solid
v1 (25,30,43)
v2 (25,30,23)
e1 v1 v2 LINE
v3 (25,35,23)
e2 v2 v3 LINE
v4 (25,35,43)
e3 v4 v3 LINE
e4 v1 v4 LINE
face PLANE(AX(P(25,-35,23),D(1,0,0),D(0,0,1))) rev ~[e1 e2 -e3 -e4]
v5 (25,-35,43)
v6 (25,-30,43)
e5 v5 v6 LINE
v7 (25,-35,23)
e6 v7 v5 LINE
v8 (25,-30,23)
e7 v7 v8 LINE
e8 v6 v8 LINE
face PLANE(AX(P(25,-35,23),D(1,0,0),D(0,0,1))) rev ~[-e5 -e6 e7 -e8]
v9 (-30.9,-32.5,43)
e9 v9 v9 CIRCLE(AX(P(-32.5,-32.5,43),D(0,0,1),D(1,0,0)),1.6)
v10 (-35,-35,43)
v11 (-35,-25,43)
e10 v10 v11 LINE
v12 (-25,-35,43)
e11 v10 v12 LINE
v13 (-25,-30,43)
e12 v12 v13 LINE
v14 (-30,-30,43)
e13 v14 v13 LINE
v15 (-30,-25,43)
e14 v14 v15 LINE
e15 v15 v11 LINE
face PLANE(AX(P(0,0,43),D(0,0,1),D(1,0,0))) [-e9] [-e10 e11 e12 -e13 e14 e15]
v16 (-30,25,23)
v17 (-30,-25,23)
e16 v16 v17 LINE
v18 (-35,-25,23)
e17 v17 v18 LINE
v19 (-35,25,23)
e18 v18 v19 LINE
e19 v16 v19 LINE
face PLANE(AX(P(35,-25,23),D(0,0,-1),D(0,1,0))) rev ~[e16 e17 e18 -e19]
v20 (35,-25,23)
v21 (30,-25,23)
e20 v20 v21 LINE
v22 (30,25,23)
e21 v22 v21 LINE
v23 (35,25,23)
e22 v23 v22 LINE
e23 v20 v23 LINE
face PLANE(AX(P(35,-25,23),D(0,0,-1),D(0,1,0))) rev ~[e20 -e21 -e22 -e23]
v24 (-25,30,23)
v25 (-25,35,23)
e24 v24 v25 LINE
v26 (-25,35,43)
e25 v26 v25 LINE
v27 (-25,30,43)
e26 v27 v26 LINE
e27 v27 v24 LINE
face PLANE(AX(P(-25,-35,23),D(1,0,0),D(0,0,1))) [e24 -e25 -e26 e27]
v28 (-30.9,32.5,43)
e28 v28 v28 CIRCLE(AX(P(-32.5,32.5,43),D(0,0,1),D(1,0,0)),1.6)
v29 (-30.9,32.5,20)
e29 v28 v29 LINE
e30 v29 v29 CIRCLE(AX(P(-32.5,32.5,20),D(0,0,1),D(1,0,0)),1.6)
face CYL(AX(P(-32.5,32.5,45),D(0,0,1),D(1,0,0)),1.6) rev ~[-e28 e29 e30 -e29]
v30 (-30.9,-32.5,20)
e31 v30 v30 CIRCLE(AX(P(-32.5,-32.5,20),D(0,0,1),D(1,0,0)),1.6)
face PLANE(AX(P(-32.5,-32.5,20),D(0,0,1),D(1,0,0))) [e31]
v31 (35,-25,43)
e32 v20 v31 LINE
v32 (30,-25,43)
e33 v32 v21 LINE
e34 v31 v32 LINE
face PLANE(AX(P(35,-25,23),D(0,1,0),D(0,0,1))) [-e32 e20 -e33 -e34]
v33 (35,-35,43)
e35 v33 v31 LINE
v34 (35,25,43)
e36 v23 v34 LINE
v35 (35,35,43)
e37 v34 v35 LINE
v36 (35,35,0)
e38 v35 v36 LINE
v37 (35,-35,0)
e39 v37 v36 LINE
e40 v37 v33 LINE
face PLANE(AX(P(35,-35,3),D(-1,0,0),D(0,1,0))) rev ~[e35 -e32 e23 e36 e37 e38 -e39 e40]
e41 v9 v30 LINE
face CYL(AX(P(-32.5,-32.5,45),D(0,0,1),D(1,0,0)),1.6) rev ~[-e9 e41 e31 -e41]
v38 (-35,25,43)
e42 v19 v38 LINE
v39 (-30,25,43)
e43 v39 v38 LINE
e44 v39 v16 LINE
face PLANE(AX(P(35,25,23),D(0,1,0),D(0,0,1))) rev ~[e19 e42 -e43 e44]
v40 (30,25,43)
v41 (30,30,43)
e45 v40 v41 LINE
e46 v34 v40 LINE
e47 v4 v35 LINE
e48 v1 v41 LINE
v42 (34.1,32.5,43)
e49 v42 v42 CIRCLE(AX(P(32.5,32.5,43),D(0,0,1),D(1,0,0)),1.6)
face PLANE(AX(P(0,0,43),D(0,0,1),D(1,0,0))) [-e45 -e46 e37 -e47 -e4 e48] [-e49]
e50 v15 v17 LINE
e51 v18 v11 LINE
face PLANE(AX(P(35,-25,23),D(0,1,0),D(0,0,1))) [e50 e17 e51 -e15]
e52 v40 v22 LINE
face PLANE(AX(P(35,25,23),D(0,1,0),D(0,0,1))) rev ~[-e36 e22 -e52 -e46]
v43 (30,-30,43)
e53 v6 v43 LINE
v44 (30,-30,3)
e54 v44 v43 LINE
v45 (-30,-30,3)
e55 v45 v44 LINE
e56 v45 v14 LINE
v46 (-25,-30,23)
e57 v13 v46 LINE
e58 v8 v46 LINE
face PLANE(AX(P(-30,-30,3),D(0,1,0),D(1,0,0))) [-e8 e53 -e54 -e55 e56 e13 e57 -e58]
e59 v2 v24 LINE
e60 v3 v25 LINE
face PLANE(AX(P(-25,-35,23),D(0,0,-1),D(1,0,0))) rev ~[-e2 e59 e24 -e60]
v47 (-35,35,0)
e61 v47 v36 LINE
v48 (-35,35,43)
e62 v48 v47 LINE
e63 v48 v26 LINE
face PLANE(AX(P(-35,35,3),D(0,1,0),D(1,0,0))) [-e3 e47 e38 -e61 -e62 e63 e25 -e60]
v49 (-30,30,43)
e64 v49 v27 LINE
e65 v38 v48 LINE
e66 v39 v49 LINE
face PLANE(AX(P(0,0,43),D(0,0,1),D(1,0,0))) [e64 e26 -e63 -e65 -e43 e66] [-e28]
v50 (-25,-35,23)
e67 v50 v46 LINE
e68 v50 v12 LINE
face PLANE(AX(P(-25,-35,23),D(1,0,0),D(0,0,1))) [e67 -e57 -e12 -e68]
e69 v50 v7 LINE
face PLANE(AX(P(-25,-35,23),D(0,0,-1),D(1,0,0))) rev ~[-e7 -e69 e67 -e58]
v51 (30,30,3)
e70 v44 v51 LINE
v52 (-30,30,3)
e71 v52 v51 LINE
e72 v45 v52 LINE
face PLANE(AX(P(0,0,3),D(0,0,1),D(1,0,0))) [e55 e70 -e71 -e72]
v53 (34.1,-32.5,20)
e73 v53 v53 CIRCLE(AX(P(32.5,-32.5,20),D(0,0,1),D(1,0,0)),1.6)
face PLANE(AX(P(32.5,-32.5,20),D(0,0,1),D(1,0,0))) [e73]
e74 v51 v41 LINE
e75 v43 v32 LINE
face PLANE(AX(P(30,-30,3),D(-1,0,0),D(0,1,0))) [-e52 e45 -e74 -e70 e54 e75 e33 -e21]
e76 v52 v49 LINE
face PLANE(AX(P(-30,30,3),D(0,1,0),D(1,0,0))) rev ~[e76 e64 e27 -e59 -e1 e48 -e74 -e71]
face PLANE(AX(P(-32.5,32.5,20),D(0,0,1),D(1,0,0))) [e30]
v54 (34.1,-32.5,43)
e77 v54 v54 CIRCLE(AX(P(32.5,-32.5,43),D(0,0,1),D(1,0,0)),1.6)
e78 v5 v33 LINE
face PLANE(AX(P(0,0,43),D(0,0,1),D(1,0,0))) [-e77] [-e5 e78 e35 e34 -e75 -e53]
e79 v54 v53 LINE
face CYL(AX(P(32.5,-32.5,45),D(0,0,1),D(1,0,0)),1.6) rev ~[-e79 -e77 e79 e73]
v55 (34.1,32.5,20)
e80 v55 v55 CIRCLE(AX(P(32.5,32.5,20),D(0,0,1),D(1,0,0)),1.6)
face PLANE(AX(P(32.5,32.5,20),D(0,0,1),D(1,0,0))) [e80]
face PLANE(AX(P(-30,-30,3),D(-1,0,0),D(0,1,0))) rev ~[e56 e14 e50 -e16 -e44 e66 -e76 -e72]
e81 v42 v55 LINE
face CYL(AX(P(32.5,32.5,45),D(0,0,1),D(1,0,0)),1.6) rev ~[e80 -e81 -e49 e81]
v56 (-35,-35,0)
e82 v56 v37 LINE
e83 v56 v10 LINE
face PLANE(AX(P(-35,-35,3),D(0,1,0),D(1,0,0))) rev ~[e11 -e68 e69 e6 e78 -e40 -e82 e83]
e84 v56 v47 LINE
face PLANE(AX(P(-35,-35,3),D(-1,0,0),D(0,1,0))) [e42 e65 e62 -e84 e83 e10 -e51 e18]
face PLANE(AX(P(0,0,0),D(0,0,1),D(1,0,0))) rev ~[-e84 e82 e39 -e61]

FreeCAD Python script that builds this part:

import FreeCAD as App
import Part
import Sketcher
Q = App.Units.Quantity


def add_polygon(sketch, points):
    """Adds a closed chain of lines whose ends are joined by coincident constraints."""
    first, n = sketch.GeometryCount, len(points)
    for a, b in zip(points, points[1:] + points[:1]):
        sketch.addGeometry(Part.LineSegment(App.Vector(*a, 0), App.Vector(*b, 0)), False)
    for i in range(n):
        sketch.addConstraint(Sketcher.Constraint("Coincident", first + i, 2, first + (i + 1) % n, 1))

doc = App.newDocument("Part")
body = doc.addObject("PartDesign::Body", "Body")

sketch1 = body.newObject("Sketcher::SketchObject", "Sketch")
sketch1.AttachmentSupport = (doc.getObject("XY_Plane"), [""])
sketch1.MapMode = "FlatFace"
add_polygon(sketch1, [(-35, 35), (-35, -35), (35, -35), (35, 35)])
sketch1.addConstraint([
    Sketcher.Constraint("Vertical", 0),
    Sketcher.Constraint("Horizontal", 1),
    Sketcher.Constraint("Vertical", 2),
    Sketcher.Constraint("Horizontal", 3),
    Sketcher.Constraint("Symmetric", 0, 2, 2, 2, -1, 1),
    Sketcher.Constraint("Equal", 3, 0),
    Sketcher.Constraint("DistanceX", 1, 1, 1, 2, Q("70 mm")),
])
pad1 = body.newObject("PartDesign::Pad", "Pad")
pad1.Profile = sketch1
pad1.Length = 3

sketch2 = body.newObject("Sketcher::SketchObject", "Sketch001")
sketch2.AttachmentSupport = (doc.getObject("XY_Plane"), [""])
sketch2.MapMode = "FlatFace"
sketch2.AttachmentOffset = App.Placement(App.Vector(0, 0, 3), App.Rotation())
add_polygon(sketch2, [(-35, 35), (-35, -35), (35, -35), (35, 35)])
add_polygon(sketch2, [(30, -30), (-30, -30), (-30, 30), (30, 30)])
sketch2.addConstraint([
    Sketcher.Constraint("Vertical", 0),
    Sketcher.Constraint("Horizontal", 1),
    Sketcher.Constraint("Vertical", 2),
    Sketcher.Constraint("Horizontal", 3),
    Sketcher.Constraint("Horizontal", 4),
    Sketcher.Constraint("Vertical", 5),
    Sketcher.Constraint("Horizontal", 6),
    Sketcher.Constraint("Vertical", 7),
    Sketcher.Constraint("Symmetric", 0, 2, 2, 2, -1, 1),
    Sketcher.Constraint("Symmetric", 4, 2, 6, 2, -1, 1),
    Sketcher.Constraint("Equal", 3, 0),
    Sketcher.Constraint("Equal", 6, 5),
    Sketcher.Constraint("DistanceX", 1, 1, 1, 2, Q("70 mm")),
    Sketcher.Constraint("DistanceX", 4, 2, 4, 1, Q("60 mm")),
])
pad2 = body.newObject("PartDesign::Pad", "Pad001")
pad2.Profile = sketch2
pad2.Length = 40

sketch3 = body.newObject("Sketcher::SketchObject", "Sketch002")
sketch3.AttachmentSupport = (doc.getObject("XZ_Plane"), [""])
sketch3.MapMode = "FlatFace"
sketch3.AttachmentOffset = App.Placement(App.Vector(0, 0, 35), App.Rotation())
add_polygon(sketch3, [(-25, 43), (-25, 23), (25, 23), (25, 43)])
sketch3.addConstraint([
    Sketcher.Constraint("Vertical", 0),
    Sketcher.Constraint("Horizontal", 1),
    Sketcher.Constraint("Vertical", 2),
    Sketcher.Constraint("Horizontal", 3),
    Sketcher.Constraint("DistanceX", 1, 1, 1, 2, Q("50 mm")),
    Sketcher.Constraint("DistanceY", 0, 2, 0, 1, Q("20 mm")),
    Sketcher.Constraint("DistanceX", 0, 2, -1, 1, Q("25 mm")),
    Sketcher.Constraint("DistanceY", -1, 1, 0, 2, Q("23 mm")),
])
pocket1 = body.newObject("PartDesign::Pocket", "Pocket")
pocket1.Profile = sketch3
pocket1.Length = 71

sketch4 = body.newObject("Sketcher::SketchObject", "Sketch003")
sketch4.AttachmentSupport = (doc.getObject("YZ_Plane"), [""])
sketch4.MapMode = "FlatFace"
sketch4.AttachmentOffset = App.Placement(App.Vector(0, 0, 35), App.Rotation())
add_polygon(sketch4, [(-25, 43), (-25, 23), (25, 23), (25, 43)])
sketch4.addConstraint([
    Sketcher.Constraint("Vertical", 0),
    Sketcher.Constraint("Horizontal", 1),
    Sketcher.Constraint("Vertical", 2),
    Sketcher.Constraint("Horizontal", 3),
    Sketcher.Constraint("DistanceX", 1, 1, 1, 2, Q("50 mm")),
    Sketcher.Constraint("DistanceY", 0, 2, 0, 1, Q("20 mm")),
    Sketcher.Constraint("DistanceX", 0, 2, -1, 1, Q("25 mm")),
    Sketcher.Constraint("DistanceY", -1, 1, 0, 2, Q("23 mm")),
])
pocket2 = body.newObject("PartDesign::Pocket", "Pocket001")
pocket2.Profile = sketch4
pocket2.Length = 70

sketch5 = body.newObject("Sketcher::SketchObject", "Sketch004")
sketch5.AttachmentSupport = (doc.getObject("XY_Plane"), [""])
sketch5.MapMode = "FlatFace"
sketch5.AttachmentOffset = App.Placement(App.Vector(0, 0, 45), App.Rotation())
sketch5.addGeometry([
    Part.Circle(App.Vector(32.5, 32.5, 0), App.Vector(0, 0, 1), 1.6),
    Part.Circle(App.Vector(32.5, -32.5, 0), App.Vector(0, 0, 1), 1.6),
    Part.Circle(App.Vector(-32.5, 32.5, 0), App.Vector(0, 0, 1), 1.6),
    Part.Circle(App.Vector(-32.5, -32.5, 0), App.Vector(0, 0, 1), 1.6),
], False)
sketch5.addConstraint([
    Sketcher.Constraint("Equal", 0, 1),
    Sketcher.Constraint("Equal", 1, 2),
    Sketcher.Constraint("Equal", 2, 3),
    Sketcher.Constraint("Symmetric", 1, 3, 2, 3, -1, 1),
    Sketcher.Constraint("Symmetric", 0, 3, 3, 3, -1, 1),
    Sketcher.Constraint("Symmetric", 0, 3, 2, 3, -2),
    Sketcher.Constraint("Diameter", 0, Q("3.2 mm")),
    Sketcher.Constraint("DistanceY", 1, 3, 0, 3, Q("65 mm")),
    Sketcher.Constraint("DistanceX", 2, 3, 0, 3, Q("65 mm")),
])
pocket3 = body.newObject("PartDesign::Pocket", "Pocket002")
pocket3.Profile = sketch5
pocket3.Length = 25

doc.recompute()
